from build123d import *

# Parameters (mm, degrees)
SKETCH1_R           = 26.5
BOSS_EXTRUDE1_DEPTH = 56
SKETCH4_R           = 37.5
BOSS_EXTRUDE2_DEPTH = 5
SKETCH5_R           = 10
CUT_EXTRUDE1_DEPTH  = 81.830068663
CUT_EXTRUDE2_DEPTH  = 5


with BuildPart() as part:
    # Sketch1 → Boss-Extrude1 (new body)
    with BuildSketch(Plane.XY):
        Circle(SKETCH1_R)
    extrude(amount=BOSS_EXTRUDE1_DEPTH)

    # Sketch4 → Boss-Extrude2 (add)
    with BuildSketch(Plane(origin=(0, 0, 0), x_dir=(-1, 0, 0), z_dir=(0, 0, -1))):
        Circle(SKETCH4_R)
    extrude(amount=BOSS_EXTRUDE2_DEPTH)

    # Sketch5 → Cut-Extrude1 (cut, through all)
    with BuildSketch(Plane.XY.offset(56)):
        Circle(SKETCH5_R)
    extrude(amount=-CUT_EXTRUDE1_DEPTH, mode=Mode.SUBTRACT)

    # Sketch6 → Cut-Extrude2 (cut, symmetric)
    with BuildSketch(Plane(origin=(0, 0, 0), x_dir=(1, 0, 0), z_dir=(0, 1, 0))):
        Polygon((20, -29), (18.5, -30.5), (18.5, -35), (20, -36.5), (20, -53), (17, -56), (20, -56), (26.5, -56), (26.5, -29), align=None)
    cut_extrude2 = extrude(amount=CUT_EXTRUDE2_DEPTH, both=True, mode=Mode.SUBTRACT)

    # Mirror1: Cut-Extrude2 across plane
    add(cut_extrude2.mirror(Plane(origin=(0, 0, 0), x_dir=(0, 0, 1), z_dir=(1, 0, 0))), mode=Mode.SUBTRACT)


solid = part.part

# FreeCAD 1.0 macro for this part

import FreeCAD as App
import Part
import Sketcher

doc = App.newDocument("Part")
body = doc.addObject("PartDesign::Body", "Body")

sketch1 = doc.addObject("Sketcher::SketchObject", "Sketch")
body.addObject(sketch1)
sketch1.AttachmentSupport = (doc.XY_Plane, [""])
sketch1.MapMode = "FlatFace"
sketch1.addGeometry(Part.Circle(App.Vector(0, 0, 0), App.Vector(0, 0, 1), 26), False)
sketch1.addConstraint([
    Sketcher.Constraint("Coincident", 0, 3, -1, 1),
    Sketcher.Constraint("Diameter", 0, 53.0),
])
pad1 = doc.addObject("PartDesign::Pad", "Pad")
body.addObject(pad1)
pad1.Profile = sketch1
pad1.Length = 56

sketch2 = doc.addObject("Sketcher::SketchObject", "Sketch001")
body.addObject(sketch2)
sketch2.AttachmentSupport = (doc.XY_Plane, [""])
sketch2.MapMode = "FlatFace"
sketch2.addGeometry(Part.Circle(App.Vector(0, 0, 0), App.Vector(0, 0, 1), 38), False)
sketch2.addConstraint([
    Sketcher.Constraint("Coincident", 0, 3, -1, 1),
    Sketcher.Constraint("Diameter", 0, 75.0),
])
pad2 = doc.addObject("PartDesign::Pad", "Pad001")
body.addObject(pad2)
pad2.Profile = sketch2
pad2.Length = 5
pad2.Reversed = True

sketch3 = doc.addObject("Sketcher::SketchObject", "Sketch002")
body.addObject(sketch3)
sketch3.AttachmentSupport = (doc.XY_Plane, [""])
sketch3.MapMode = "FlatFace"
sketch3.AttachmentOffset = App.Placement(App.Vector(0, 0, 56), App.Rotation())
sketch3.addGeometry(Part.Circle(App.Vector(0, 0, 0), App.Vector(0, 0, 1), 10), False)
sketch3.addConstraint([
    Sketcher.Constraint("Coincident", 0, 3, -1, 1),
    Sketcher.Constraint("Diameter", 0, 20.0),
])
pocket1 = doc.addObject("PartDesign::Pocket", "Pocket")
body.addObject(pocket1)
pocket1.Profile = sketch3
pocket1.Type = "ThroughAll"

sketch4 = doc.addObject("Sketcher::SketchObject", "Sketch003")
body.addObject(sketch4)
sketch4.AttachmentSupport = (doc.XZ_Plane, [""])
sketch4.MapMode = "FlatFace"
sketch4.addGeometry([
    Part.LineSegment(App.Vector(20, 29, 0), App.Vector(18.5, 30.5, 0)),
    Part.LineSegment(App.Vector(18.5, 30.5, 0), App.Vector(18.5, 35, 0)),
    Part.LineSegment(App.Vector(18.5, 35, 0), App.Vector(20, 36.5, 0)),
    Part.LineSegment(App.Vector(20, 36.5, 0), App.Vector(20, 53, 0)),
    Part.LineSegment(App.Vector(20, 53, 0), App.Vector(17, 56, 0)),
    Part.LineSegment(App.Vector(17, 56, 0), App.Vector(26.5, 56, 0)),
    Part.LineSegment(App.Vector(26.5, 56, 0), App.Vector(26.5, 29, 0)),
    Part.LineSegment(App.Vector(26.5, 29, 0), App.Vector(20, 29, 0)),
], False)
sketch4.addConstraint([
    Sketcher.Constraint("Coincident", 0, 2, 1, 1),
    Sketcher.Constraint("Coincident", 1, 2, 2, 1),
    Sketcher.Constraint("Coincident", 2, 2, 3, 1),
    Sketcher.Constraint("Coincident", 3, 2, 4, 1),
    Sketcher.Constraint("Coincident", 4, 2, 5, 1),
    Sketcher.Constraint("Coincident", 5, 2, 6, 1),
    Sketcher.Constraint("Coincident", 6, 2, 7, 1),
    Sketcher.Constraint("Coincident", 7, 2, 0, 1),
    Sketcher.Constraint("Vertical", 1),
    Sketcher.Constraint("Vertical", 3),
    Sketcher.Constraint("Horizontal", 5),
    Sketcher.Constraint("Vertical", 6),
    Sketcher.Constraint("Horizontal", 7),
    Sketcher.Constraint("Perpendicular", 0, 2),
    Sketcher.Constraint("Perpendicular", 2, 4),
    Sketcher.Constraint("Vertical", 3, 2, 7, 2),
    Sketcher.Constraint("Equal", 0, 2),
    Sketcher.Constraint("DistanceY", 6, 2, 6, 1, 27.0),
    Sketcher.Constraint("DistanceX", 5, 1, 5, 2, 9.5),
    Sketcher.Constraint("DistanceX", 7, 2, 7, 1, 6.5),
    Sketcher.Constraint("DistanceY", 1, 1, 1, 2, 4.5),
    Sketcher.Constraint("DistanceY", 3, 1, 3, 2, 16.5),
    Sketcher.Constraint("DistanceY", -1, 1, 1, 2, 35.0),
    Sketcher.Constraint("DistanceX", -1, 1, 2, 2, 20.0),
])
pocket2 = doc.addObject("PartDesign::Pocket", "Pocket001")
body.addObject(pocket2)
pocket2.Profile = sketch4
pocket2.Length = 10
pocket2.Midplane = True
doc.recompute()

mirrored = doc.addObject("PartDesign::Mirrored", "Mirrored")
body.addObject(mirrored)
mirrored.Originals = [pocket2]
mirrored.MirrorPlane = (doc.YZ_Plane, [""])
body.Tip = mirrored

doc.recompute()
